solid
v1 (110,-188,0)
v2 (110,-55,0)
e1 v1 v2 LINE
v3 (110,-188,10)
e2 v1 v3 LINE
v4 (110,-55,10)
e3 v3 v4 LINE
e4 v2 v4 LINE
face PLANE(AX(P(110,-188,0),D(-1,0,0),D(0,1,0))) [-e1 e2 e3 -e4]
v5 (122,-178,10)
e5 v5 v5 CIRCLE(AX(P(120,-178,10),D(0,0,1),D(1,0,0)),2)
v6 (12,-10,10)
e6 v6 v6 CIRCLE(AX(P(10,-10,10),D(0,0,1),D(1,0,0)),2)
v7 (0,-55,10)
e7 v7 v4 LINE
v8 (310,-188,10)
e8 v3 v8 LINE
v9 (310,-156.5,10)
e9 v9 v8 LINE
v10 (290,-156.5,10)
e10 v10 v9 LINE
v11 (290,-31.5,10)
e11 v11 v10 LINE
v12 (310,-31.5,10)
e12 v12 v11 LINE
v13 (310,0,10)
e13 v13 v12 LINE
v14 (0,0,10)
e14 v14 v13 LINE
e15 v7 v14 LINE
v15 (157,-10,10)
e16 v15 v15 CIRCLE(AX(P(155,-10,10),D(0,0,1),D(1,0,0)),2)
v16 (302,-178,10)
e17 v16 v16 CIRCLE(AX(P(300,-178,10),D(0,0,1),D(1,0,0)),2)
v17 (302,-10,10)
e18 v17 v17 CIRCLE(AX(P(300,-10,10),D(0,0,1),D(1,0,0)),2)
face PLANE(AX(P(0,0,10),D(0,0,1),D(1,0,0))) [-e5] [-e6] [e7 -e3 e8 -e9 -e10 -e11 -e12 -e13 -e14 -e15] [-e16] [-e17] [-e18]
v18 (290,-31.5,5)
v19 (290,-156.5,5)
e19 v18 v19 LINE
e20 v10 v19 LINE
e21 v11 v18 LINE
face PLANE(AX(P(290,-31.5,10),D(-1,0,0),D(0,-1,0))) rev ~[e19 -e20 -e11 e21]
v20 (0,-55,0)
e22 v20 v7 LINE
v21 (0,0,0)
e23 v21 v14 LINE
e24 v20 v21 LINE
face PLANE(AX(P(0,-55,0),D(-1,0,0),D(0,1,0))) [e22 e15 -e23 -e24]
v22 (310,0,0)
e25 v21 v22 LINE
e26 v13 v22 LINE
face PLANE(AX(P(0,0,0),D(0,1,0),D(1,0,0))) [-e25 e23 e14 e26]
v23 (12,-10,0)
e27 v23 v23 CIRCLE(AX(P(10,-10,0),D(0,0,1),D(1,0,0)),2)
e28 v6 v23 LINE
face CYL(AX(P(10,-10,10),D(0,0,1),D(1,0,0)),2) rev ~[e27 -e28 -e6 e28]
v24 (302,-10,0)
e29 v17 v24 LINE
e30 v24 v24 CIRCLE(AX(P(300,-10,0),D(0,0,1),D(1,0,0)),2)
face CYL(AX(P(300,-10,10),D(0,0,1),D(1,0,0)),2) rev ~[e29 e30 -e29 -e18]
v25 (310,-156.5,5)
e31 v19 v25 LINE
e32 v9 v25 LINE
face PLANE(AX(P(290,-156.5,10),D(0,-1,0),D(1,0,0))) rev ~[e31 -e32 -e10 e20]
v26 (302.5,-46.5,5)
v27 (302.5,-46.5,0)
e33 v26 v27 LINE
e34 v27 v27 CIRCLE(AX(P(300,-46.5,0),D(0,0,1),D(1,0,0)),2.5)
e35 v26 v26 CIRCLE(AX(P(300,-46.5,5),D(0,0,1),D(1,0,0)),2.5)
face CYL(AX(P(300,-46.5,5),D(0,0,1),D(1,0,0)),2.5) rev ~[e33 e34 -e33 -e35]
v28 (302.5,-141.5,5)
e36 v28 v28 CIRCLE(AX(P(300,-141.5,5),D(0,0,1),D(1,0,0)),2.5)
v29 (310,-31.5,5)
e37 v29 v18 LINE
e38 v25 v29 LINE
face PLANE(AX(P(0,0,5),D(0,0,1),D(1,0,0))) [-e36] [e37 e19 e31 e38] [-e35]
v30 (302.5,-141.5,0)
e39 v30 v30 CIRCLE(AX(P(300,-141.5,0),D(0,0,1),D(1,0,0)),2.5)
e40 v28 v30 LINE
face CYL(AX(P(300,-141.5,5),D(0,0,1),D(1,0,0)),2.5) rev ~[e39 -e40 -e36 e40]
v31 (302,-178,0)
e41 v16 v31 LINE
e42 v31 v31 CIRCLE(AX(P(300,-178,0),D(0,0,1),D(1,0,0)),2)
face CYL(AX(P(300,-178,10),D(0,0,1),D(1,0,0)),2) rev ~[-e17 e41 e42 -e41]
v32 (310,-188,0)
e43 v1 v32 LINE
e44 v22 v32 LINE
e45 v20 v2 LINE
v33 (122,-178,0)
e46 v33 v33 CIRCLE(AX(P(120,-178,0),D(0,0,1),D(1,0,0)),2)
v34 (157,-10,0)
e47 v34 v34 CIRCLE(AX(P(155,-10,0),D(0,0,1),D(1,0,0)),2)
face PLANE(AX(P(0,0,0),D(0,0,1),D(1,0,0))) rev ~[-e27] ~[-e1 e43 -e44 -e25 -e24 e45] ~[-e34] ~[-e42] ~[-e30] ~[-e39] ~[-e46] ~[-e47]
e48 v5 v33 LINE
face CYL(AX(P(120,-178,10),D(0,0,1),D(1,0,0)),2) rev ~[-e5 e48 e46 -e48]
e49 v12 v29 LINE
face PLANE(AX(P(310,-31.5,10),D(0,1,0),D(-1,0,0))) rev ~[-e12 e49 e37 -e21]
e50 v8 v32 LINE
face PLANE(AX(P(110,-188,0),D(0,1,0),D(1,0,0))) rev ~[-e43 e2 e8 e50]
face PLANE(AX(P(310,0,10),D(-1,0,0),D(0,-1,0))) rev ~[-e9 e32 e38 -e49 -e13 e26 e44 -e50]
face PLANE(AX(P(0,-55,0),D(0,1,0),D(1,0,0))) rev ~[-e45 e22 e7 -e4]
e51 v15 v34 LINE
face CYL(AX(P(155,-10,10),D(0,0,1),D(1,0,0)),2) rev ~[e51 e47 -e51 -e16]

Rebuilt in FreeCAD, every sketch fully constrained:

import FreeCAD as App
import Part
import Sketcher

doc = App.newDocument("Part")
body = doc.addObject("PartDesign::Body", "Body")

# Sketch on XY plane
sketch1 = body.newObject("Sketcher::SketchObject", "Sketch")
sketch1.AttachmentSupport = (doc.getObject("XY_Plane"), [""])
sketch1.MapMode = "FlatFace"
sketch1.addGeometry(Part.LineSegment(App.Vector(620, 0, 0), App.Vector(0, 0, 0)), False)
sketch1.addGeometry(Part.LineSegment(App.Vector(0, 0, 0), App.Vector(0, -55, 0)), False)
sketch1.addGeometry(Part.LineSegment(App.Vector(0, -55, 0), App.Vector(110, -55, 0)), False)
sketch1.addGeometry(Part.LineSegment(App.Vector(110, -55, 0), App.Vector(110, -188, 0)), False)
sketch1.addGeometry(Part.LineSegment(App.Vector(110, -188, 0), App.Vector(510, -188, 0)), False)
sketch1.addGeometry(Part.LineSegment(App.Vector(510, -188, 0), App.Vector(510, -55, 0)), False)
sketch1.addGeometry(Part.LineSegment(App.Vector(510, -55, 0), App.Vector(620, -55, 0)), False)
sketch1.addGeometry(Part.LineSegment(App.Vector(620, -55, 0), App.Vector(620, 0, 0)), False)
sketch1.addConstraint(Sketcher.Constraint("Coincident", 0, 2, 1, 1))
sketch1.addConstraint(Sketcher.Constraint("Coincident", 1, 2, 2, 1))
sketch1.addConstraint(Sketcher.Constraint("Coincident", 2, 2, 3, 1))
sketch1.addConstraint(Sketcher.Constraint("Coincident", 3, 2, 4, 1))
sketch1.addConstraint(Sketcher.Constraint("Coincident", 4, 2, 5, 1))
sketch1.addConstraint(Sketcher.Constraint("Coincident", 5, 2, 6, 1))
sketch1.addConstraint(Sketcher.Constraint("Coincident", 6, 2, 7, 1))
sketch1.addConstraint(Sketcher.Constraint("Coincident", 7, 2, 0, 1))
sketch1.addConstraint(Sketcher.Constraint("Horizontal", 0))
sketch1.addConstraint(Sketcher.Constraint("Vertical", 1))
sketch1.addConstraint(Sketcher.Constraint("Horizontal", 2))
sketch1.addConstraint(Sketcher.Constraint("Vertical", 3))
sketch1.addConstraint(Sketcher.Constraint("Horizontal", 4))
sketch1.addConstraint(Sketcher.Constraint("Vertical", 5))
sketch1.addConstraint(Sketcher.Constraint("Horizontal", 6))
sketch1.addConstraint(Sketcher.Constraint("Vertical", 7))
sketch1.addConstraint(Sketcher.Constraint("Coincident", 0, 2, -1, 1))
sketch1.addConstraint(Sketcher.Constraint("Horizontal", 2, 2, 5, 2))
sketch1.addConstraint(Sketcher.Constraint("Equal", 2, 6))
sketch1.addConstraint(Sketcher.Constraint("DistanceX", 0, 2, 0, 1, 620.0))
sketch1.addConstraint(Sketcher.Constraint("DistanceX", 4, 1, 4, 2, 400.0))
sketch1.addConstraint(Sketcher.Constraint("DistanceY", 3, 2, 3, 1, 133.0))
sketch1.addConstraint(Sketcher.Constraint("DistanceY", 3, 2, -1, 1, 188.0))
pad1 = body.newObject("PartDesign::Pad", "Pad")
pad1.Profile = sketch1
pad1.Length = 10

# Sketch on XY plane
sketch2 = body.newObject("Sketcher::SketchObject", "Sketch001")
sketch2.AttachmentSupport = (doc.getObject("XY_Plane"), [""])
sketch2.MapMode = "FlatFace"
sketch2.AttachmentOffset = App.Placement(App.Vector(0, 0, 10), App.Rotation())
sketch2.addGeometry(Part.LineSegment(App.Vector(620, -188, 0), App.Vector(620, 0, 0)), False)
sketch2.addGeometry(Part.LineSegment(App.Vector(620, 0, 0), App.Vector(310, 0, 0)), False)
sketch2.addGeometry(Part.LineSegment(App.Vector(310, 0, 0), App.Vector(310, -188, 0)), False)
sketch2.addGeometry(Part.LineSegment(App.Vector(310, -188, 0), App.Vector(620, -188, 0)), False)
sketch2.addConstraint(Sketcher.Constraint("Coincident", 0, 2, 1, 1))
sketch2.addConstraint(Sketcher.Constraint("Coincident", 1, 2, 2, 1))
sketch2.addConstraint(Sketcher.Constraint("Coincident", 2, 2, 3, 1))
sketch2.addConstraint(Sketcher.Constraint("Coincident", 3, 2, 0, 1))
sketch2.addConstraint(Sketcher.Constraint("Vertical", 0))
sketch2.addConstraint(Sketcher.Constraint("Horizontal", 1))
sketch2.addConstraint(Sketcher.Constraint("Vertical", 2))
sketch2.addConstraint(Sketcher.Constraint("Horizontal", 3))
sketch2.addConstraint(Sketcher.Constraint("PointOnObject", 0, 2, -1))
sketch2.addConstraint(Sketcher.Constraint("DistanceX", 1, 2, 1, 1, 310.0))
sketch2.addConstraint(Sketcher.Constraint("DistanceY", 0, 1, 0, 2, 188.0))
sketch2.addConstraint(Sketcher.Constraint("DistanceX", -1, 1, 0, 2, 620.0))
pocket1 = body.newObject("PartDesign::Pocket", "Pocket")
pocket1.Profile = sketch2
pocket1.Type = "ThroughAll"

# Sketch on XY plane
sketch3 = body.newObject("Sketcher::SketchObject", "Sketch002")
sketch3.AttachmentSupport = (doc.getObject("XY_Plane"), [""])
sketch3.MapMode = "FlatFace"
sketch3.AttachmentOffset = App.Placement(App.Vector(0, 0, 10), App.Rotation())
sketch3.addGeometry(Part.Circle(App.Vector(10, -10, 0), App.Vector(0, 0, 1), 2), False)
sketch3.addGeometry(Part.Circle(App.Vector(155, -10, 0), App.Vector(0, 0, 1), 2), False)
sketch3.addGeometry(Part.Circle(App.Vector(300, -10, 0), App.Vector(0, 0, 1), 2), False)
sketch3.addGeometry(Part.Circle(App.Vector(120, -178, 0), App.Vector(0, 0, 1), 2), False)
sketch3.addGeometry(Part.Circle(App.Vector(300, -178, 0), App.Vector(0, 0, 1), 2), False)
sketch3.addConstraint(Sketcher.Constraint("Equal", 0, 1))
sketch3.addConstraint(Sketcher.Constraint("Equal", 1, 2))
sketch3.addConstraint(Sketcher.Constraint("Equal", 2, 3))
sketch3.addConstraint(Sketcher.Constraint("Equal", 3, 4))
sketch3.addConstraint(Sketcher.Constraint("Horizontal", 0, 3, 1, 3))
sketch3.addConstraint(Sketcher.Constraint("Horizontal", 1, 3, 2, 3))
sketch3.addConstraint(Sketcher.Constraint("Horizontal", 3, 3, 4, 3))
sketch3.addConstraint(Sketcher.Constraint("Vertical", 2, 3, 4, 3))
sketch3.addConstraint(Sketcher.Constraint("Diameter", 0, 4.0))
sketch3.addConstraint(Sketcher.Constraint("DistanceX", -1, 1, 0, 3, 10.0))
sketch3.addConstraint(Sketcher.Constraint("DistanceY", 0, 3, -1, 1, 10.0))
sketch3.addConstraint(Sketcher.Constraint("DistanceX", -1, 1, 1, 3, 155.0))
sketch3.addConstraint(Sketcher.Constraint("DistanceX", -1, 1, 2, 3, 300.0))
sketch3.addConstraint(Sketcher.Constraint("DistanceX", -1, 1, 3, 3, 120.0))
sketch3.addConstraint(Sketcher.Constraint("DistanceY", 3, 3, -1, 1, 178.0))
pocket2 = body.newObject("PartDesign::Pocket", "Pocket001")
pocket2.Profile = sketch3
pocket2.Type = "ThroughAll"

# Sketch on XY plane
sketch4 = body.newObject("Sketcher::SketchObject", "Sketch003")
sketch4.AttachmentSupport = (doc.getObject("XY_Plane"), [""])
sketch4.MapMode = "FlatFace"
sketch4.AttachmentOffset = App.Placement(App.Vector(0, 0, 10), App.Rotation())
sketch4.addGeometry(Part.LineSegment(App.Vector(310, -156, 0), App.Vector(310, -32, 0)), False)
sketch4.addGeometry(Part.LineSegment(App.Vector(310, -32, 0), App.Vector(290, -32, 0)), False)
sketch4.addGeometry(Part.LineSegment(App.Vector(290, -32, 0), App.Vector(290, -156, 0)), False)
sketch4.addGeometry(Part.LineSegment(App.Vector(290, -156, 0), App.Vector(310, -156, 0)), False)
sketch4.addConstraint(Sketcher.Constraint("Coincident", 0, 2, 1, 1))
sketch4.addConstraint(Sketcher.Constraint("Coincident", 1, 2, 2, 1))
sketch4.addConstraint(Sketcher.Constraint("Coincident", 2, 2, 3, 1))
sketch4.addConstraint(Sketcher.Constraint("Coincident", 3, 2, 0, 1))
sketch4.addConstraint(Sketcher.Constraint("Vertical", 0))
sketch4.addConstraint(Sketcher.Constraint("Horizontal", 1))
sketch4.addConstraint(Sketcher.Constraint("Vertical", 2))
sketch4.addConstraint(Sketcher.Constraint("Horizontal", 3))
sketch4.addConstraint(Sketcher.Constraint("DistanceX", 1, 2, 1, 1, 20.0))
sketch4.addConstraint(Sketcher.Constraint("DistanceY", 0, 1, 0, 2, 125.0))
sketch4.addConstraint(Sketcher.Constraint("DistanceX", -1, 1, 0, 2, 310.0))
sketch4.addConstraint(Sketcher.Constraint("DistanceY", 0, 2, -1, 1, 31.5))
pocket3 = body.newObject("PartDesign::Pocket", "Pocket002")
pocket3.Profile = sketch4
pocket3.Length = 5

# Sketch on XY plane
sketch5 = body.newObject("Sketcher::SketchObject", "Sketch004")
sketch5.AttachmentSupport = (doc.getObject("XY_Plane"), [""])
sketch5.MapMode = "FlatFace"
sketch5.AttachmentOffset = App.Placement(App.Vector(0, 0, 5), App.Rotation())
sketch5.addGeometry(Part.Circle(App.Vector(300, -46.5, 0), App.Vector(0, 0, 1), 2.5), False)
sketch5.addGeometry(Part.Circle(App.Vector(300, -141.5, 0), App.Vector(0, 0, 1), 2.5), False)
sketch5.addConstraint(Sketcher.Constraint("Equal", 0, 1))
sketch5.addConstraint(Sketcher.Constraint("Vertical", 0, 3, 1, 3))
sketch5.addConstraint(Sketcher.Constraint("Diameter", 0, 5.0))
sketch5.addConstraint(Sketcher.Constraint("DistanceY", 1, 3, 0, 3, 95.0))
sketch5.addConstraint(Sketcher.Constraint("DistanceX", -1, 1, 0, 3, 300.0))
sketch5.addConstraint(Sketcher.Constraint("DistanceY", 0, 3, -1, 1, 46.5))
pocket4 = body.newObject("PartDesign::Pocket", "Pocket003")
pocket4.Profile = sketch5
pocket4.Type = "ThroughAll"

doc.recompute()
